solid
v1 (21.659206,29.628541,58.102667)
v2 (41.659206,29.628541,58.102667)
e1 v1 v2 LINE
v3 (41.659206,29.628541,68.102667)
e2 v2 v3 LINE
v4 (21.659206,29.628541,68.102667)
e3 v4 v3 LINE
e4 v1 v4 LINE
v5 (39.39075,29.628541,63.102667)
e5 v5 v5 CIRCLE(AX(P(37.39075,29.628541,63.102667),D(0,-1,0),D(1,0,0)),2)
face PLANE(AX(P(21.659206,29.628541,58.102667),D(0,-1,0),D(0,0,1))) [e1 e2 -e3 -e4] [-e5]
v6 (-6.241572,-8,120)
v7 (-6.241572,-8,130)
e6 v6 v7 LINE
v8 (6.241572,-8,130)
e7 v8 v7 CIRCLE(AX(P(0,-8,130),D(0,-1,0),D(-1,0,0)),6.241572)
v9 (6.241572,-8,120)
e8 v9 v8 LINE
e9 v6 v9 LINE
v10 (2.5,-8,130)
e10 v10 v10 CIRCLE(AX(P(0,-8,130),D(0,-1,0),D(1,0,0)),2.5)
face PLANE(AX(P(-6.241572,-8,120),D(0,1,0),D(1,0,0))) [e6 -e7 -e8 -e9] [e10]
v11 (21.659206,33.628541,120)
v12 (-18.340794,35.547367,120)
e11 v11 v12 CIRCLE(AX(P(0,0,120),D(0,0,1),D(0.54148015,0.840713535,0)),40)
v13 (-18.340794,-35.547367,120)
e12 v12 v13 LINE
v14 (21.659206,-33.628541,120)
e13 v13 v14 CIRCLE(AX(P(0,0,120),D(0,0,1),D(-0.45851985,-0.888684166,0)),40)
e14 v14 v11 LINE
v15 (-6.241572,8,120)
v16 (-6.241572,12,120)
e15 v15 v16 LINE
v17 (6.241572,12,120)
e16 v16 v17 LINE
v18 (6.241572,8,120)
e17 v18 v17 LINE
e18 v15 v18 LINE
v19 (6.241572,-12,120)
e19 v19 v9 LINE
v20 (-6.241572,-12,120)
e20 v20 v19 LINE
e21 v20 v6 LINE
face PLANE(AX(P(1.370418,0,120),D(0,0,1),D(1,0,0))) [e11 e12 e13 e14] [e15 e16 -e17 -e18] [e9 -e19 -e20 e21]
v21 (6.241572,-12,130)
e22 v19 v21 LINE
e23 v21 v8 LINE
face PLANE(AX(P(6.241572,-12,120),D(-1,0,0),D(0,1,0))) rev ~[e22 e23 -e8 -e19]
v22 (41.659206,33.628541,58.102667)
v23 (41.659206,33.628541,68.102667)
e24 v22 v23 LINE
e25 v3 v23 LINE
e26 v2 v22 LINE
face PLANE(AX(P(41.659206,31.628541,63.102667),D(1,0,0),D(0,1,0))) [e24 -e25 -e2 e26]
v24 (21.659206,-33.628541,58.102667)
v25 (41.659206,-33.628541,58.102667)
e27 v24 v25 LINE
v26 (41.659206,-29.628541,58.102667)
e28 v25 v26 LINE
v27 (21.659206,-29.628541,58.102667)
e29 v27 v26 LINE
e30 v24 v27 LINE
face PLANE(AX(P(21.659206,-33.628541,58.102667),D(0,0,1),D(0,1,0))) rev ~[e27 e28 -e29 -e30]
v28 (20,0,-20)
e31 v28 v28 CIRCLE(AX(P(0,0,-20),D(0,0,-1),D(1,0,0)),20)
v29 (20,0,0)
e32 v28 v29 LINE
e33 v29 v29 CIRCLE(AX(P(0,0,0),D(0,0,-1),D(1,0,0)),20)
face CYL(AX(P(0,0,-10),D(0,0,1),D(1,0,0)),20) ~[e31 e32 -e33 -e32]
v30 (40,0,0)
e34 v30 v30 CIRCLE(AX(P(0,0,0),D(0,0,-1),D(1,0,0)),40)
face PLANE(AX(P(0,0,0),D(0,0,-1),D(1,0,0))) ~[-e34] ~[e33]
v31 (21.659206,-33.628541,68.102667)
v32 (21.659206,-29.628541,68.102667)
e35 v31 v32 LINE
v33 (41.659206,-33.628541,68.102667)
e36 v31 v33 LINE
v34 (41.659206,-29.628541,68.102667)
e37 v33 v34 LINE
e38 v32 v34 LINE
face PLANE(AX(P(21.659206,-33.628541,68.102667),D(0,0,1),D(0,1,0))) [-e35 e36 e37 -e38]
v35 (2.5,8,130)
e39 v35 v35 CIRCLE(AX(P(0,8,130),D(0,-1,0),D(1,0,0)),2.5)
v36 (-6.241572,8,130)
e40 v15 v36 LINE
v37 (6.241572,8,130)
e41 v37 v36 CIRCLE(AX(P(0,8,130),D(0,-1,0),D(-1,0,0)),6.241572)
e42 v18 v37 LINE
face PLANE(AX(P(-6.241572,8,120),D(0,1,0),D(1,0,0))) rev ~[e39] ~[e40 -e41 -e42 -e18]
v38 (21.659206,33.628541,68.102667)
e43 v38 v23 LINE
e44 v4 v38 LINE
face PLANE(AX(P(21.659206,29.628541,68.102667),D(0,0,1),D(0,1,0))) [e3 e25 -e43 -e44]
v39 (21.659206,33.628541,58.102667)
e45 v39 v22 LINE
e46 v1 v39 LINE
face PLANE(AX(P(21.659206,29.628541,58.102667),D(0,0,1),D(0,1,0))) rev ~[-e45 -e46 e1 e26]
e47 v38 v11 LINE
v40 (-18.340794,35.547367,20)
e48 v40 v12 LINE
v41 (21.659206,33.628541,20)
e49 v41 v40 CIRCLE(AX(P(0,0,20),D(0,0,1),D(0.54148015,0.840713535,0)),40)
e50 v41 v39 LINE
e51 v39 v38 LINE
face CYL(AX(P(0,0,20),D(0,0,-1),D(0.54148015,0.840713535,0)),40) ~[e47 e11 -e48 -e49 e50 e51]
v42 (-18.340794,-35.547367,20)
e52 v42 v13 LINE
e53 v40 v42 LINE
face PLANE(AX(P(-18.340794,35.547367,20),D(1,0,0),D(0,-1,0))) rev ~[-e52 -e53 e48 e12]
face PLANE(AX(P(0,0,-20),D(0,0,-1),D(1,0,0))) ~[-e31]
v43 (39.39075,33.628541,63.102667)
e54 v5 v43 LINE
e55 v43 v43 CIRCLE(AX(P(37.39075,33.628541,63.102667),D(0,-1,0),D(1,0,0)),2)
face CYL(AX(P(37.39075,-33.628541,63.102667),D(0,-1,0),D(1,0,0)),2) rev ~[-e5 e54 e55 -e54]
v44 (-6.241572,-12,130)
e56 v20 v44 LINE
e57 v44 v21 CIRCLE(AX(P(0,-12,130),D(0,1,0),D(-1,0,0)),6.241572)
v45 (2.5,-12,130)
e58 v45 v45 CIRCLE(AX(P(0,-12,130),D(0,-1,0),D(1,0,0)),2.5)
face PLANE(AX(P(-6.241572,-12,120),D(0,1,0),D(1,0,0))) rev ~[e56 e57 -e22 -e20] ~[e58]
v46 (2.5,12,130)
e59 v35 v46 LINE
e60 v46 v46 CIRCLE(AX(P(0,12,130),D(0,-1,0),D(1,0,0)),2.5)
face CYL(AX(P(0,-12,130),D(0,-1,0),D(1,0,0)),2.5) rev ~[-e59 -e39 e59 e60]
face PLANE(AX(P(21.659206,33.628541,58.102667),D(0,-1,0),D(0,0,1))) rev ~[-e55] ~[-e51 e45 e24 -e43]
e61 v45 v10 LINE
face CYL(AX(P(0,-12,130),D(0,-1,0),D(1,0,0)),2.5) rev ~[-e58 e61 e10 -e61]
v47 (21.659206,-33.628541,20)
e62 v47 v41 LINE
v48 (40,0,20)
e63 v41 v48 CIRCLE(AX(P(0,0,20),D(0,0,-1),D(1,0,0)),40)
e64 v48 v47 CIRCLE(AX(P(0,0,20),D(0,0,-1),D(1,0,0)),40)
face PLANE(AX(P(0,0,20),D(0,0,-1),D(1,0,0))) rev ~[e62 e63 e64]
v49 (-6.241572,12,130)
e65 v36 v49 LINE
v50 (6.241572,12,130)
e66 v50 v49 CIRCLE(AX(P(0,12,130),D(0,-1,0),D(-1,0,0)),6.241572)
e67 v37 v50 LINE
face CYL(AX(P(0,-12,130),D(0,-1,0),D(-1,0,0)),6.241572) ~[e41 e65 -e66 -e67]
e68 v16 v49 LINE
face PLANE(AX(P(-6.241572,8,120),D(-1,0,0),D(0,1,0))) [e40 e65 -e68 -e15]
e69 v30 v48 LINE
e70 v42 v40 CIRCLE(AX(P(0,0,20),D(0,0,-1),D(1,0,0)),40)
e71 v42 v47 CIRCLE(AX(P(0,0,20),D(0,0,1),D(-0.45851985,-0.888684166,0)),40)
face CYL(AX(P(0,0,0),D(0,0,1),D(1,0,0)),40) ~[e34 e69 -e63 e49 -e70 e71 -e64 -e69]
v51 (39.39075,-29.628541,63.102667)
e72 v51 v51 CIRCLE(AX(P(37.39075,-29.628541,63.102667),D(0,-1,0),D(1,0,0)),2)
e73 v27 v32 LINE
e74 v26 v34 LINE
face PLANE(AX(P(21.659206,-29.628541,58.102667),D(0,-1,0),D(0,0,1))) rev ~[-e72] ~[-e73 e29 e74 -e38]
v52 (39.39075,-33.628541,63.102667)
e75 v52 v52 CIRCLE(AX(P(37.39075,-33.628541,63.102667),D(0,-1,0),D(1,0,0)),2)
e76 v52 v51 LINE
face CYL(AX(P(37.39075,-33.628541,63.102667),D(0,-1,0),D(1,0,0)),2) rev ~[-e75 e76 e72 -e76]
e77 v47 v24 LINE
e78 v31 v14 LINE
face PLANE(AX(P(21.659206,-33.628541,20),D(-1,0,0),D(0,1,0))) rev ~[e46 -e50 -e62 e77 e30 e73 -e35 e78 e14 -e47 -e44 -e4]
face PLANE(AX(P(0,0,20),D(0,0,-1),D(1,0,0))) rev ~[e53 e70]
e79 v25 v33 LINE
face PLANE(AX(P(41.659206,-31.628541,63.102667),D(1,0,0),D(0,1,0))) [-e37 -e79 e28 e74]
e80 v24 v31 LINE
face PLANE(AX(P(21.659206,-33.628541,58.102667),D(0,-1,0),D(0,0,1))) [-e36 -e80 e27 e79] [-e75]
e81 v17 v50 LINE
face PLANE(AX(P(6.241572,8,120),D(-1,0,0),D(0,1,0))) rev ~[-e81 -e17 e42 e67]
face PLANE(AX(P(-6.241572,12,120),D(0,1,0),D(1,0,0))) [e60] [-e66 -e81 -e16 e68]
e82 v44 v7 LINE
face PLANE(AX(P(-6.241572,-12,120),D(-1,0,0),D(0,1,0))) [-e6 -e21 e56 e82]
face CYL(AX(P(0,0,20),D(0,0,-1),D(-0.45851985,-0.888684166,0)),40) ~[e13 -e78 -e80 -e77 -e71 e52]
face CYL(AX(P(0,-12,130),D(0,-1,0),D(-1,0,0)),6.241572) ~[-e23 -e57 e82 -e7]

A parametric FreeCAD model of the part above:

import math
import FreeCAD as App
import Part
import Sketcher
from FreeCAD import Vector
Q = App.Units.Quantity


def add_polygon(sketch, points):
    """Adds a closed chain of lines whose ends are joined by coincident constraints."""
    first, n = sketch.GeometryCount, len(points)
    for a, b in zip(points, points[1:] + points[:1]):
        sketch.addGeometry(Part.LineSegment(App.Vector(*a, 0), App.Vector(*b, 0)), False)
    for i in range(n):
        sketch.addConstraint(Sketcher.Constraint("Coincident", first + i, 2, first + (i + 1) % n, 1))

doc = App.newDocument("Part")
body = doc.addObject("PartDesign::Body", "Body")

# Sketch on XZ plane
sketch1 = body.newObject("Sketcher::SketchObject", "Sketch")
sketch1.AttachmentSupport = (doc.getObject("XZ_Plane"), [""])
sketch1.MapMode = "FlatFace"
add_polygon(sketch1, [(0, -20), (20, -20), (20, 0), (40, 0), (40, 20), (0, 20)])  # lines 0-5
sketch1.addConstraint(Sketcher.Constraint("Horizontal", 0))
sketch1.addConstraint(Sketcher.Constraint("Vertical", 1))
sketch1.addConstraint(Sketcher.Constraint("Horizontal", 2))
sketch1.addConstraint(Sketcher.Constraint("Vertical", 3))
sketch1.addConstraint(Sketcher.Constraint("Horizontal", 4))
sketch1.addConstraint(Sketcher.Constraint("Vertical", 5))
sketch1.addConstraint(Sketcher.Constraint("Symmetric", 4, 2, 5, 2, -1, 1))
sketch1.addConstraint(Sketcher.Constraint("PointOnObject", 1, 2, -1))
sketch1.addConstraint(Sketcher.Constraint("Equal", 0, 2))
sketch1.addConstraint(Sketcher.Constraint("Equal", 2, 1))
sketch1.addConstraint(Sketcher.Constraint("DistanceX", 0, 1, 0, 2, Q("20 mm")))
revolution = body.newObject("PartDesign::Revolution", "Revolution")
revolution.Profile = sketch1
revolution.ReferenceAxis = (sketch1, ["V_Axis"])
revolution.Angle = 360

# Sketch on XY plane
sketch2 = body.newObject("Sketcher::SketchObject", "Sketch001")
sketch2.AttachmentSupport = (doc.getObject("XY_Plane"), [""])
sketch2.MapMode = "FlatFace"
sketch2.AttachmentOffset = App.Placement(Vector(0, 0, 20), App.Rotation())
sketch2.addGeometry(Part.ArcOfCircle(Part.Circle(Vector(0, 0, 0), Vector(0, 0, 1), 40), math.radians(57), math.radians(117)), False)
sketch2.addGeometry(Part.LineSegment(Vector(-18, 36, 0), Vector(-18, -36, 0)), False)
sketch2.addGeometry(Part.ArcOfCircle(Part.Circle(Vector(0, 0, 0), Vector(0, 0, 1), 40), math.radians(-117), math.radians(-57)), False)
sketch2.addGeometry(Part.LineSegment(Vector(22, -34, 0), Vector(22, 34, 0)), False)
sketch2.addConstraint(Sketcher.Constraint("Coincident", 0, 2, 1, 1))
sketch2.addConstraint(Sketcher.Constraint("Coincident", 1, 2, 2, 1))
sketch2.addConstraint(Sketcher.Constraint("Coincident", 2, 2, 3, 1))
sketch2.addConstraint(Sketcher.Constraint("Coincident", 3, 2, 0, 1))
sketch2.addConstraint(Sketcher.Constraint("Vertical", 1))
sketch2.addConstraint(Sketcher.Constraint("Vertical", 3))
sketch2.addConstraint(Sketcher.Constraint("Coincident", 0, 3, -1, 1))
sketch2.addConstraint(Sketcher.Constraint("Coincident", 2, 3, -1, 1))
sketch2.addConstraint(Sketcher.Constraint("Equal", 0, 2))
sketch2.addConstraint(Sketcher.Constraint("Radius", 0, Q("40 mm")))
sketch2.addConstraint(Sketcher.Constraint("DistanceX", 1, 2, 2, 2, Q("40 mm")))
sketch2.addConstraint(Sketcher.Constraint("DistanceY", 1, 2, 1, 1, Q("71.094733 mm")))
pad1 = body.newObject("PartDesign::Pad", "Pad")
pad1.Profile = sketch2
pad1.Length = 100

# Sketch on XY plane
sketch3 = body.newObject("Sketcher::SketchObject", "Sketch002")
sketch3.AttachmentSupport = (doc.getObject("XY_Plane"), [""])
sketch3.MapMode = "FlatFace"
sketch3.AttachmentOffset = App.Placement(Vector(0, 0, 120), App.Rotation())
add_polygon(sketch3, [(-6.2, -8), (-6.2, -12), (6.2, -12), (6.2, -8)])  # lines 0-3
add_polygon(sketch3, [(-6.2, 12), (-6.2, 8), (6.2, 8), (6.2, 12)])  # lines 4-7
sketch3.addConstraint(Sketcher.Constraint("Vertical", 0))
sketch3.addConstraint(Sketcher.Constraint("Horizontal", 1))
sketch3.addConstraint(Sketcher.Constraint("Vertical", 2))
sketch3.addConstraint(Sketcher.Constraint("Horizontal", 3))
sketch3.addConstraint(Sketcher.Constraint("Vertical", 4))
sketch3.addConstraint(Sketcher.Constraint("Horizontal", 5))
sketch3.addConstraint(Sketcher.Constraint("Vertical", 6))
sketch3.addConstraint(Sketcher.Constraint("Horizontal", 7))
sketch3.addConstraint(Sketcher.Constraint("Symmetric", 2, 2, 4, 2, -1, 1))
sketch3.addConstraint(Sketcher.Constraint("Symmetric", 0, 2, 6, 2, -1, 1))
sketch3.addConstraint(Sketcher.Constraint("Vertical", 3, 2, 4, 2))
sketch3.addConstraint(Sketcher.Constraint("DistanceY", 0, 2, 0, 1, Q("4 mm")))
sketch3.addConstraint(Sketcher.Constraint("DistanceY", 0, 2, -1, 1, Q("12 mm")))
sketch3.addConstraint(Sketcher.Constraint("DistanceX", 1, 1, 1, 2, Q("12.483143 mm")))
pad2 = body.newObject("PartDesign::Pad", "Pad001")
pad2.Profile = sketch3
pad2.Length = 20

# Sketch on XZ plane
sketch4 = body.newObject("Sketcher::SketchObject", "Sketch003")
sketch4.AttachmentSupport = (doc.getObject("XZ_Plane"), [""])
sketch4.MapMode = "FlatFace"
sketch4.AttachmentOffset = App.Placement(Vector(0, 0, 12), App.Rotation())
sketch4.addGeometry(Part.ArcOfCircle(Part.Circle(Vector(0, 130, 0), Vector(0, 0, 1), 6), math.radians(0), math.radians(180)), False)
sketch4.addGeometry(Part.LineSegment(Vector(6, 130, 0), Vector(6, 140, 0)), False)
sketch4.addGeometry(Part.LineSegment(Vector(6, 140, 0), Vector(-6, 140, 0)), False)
sketch4.addGeometry(Part.LineSegment(Vector(-6, 140, 0), Vector(-6, 130, 0)), False)
sketch4.addConstraint(Sketcher.Constraint("Tangent", 0, 1, 1, 1))
sketch4.addConstraint(Sketcher.Constraint("Coincident", 1, 2, 2, 1))
sketch4.addConstraint(Sketcher.Constraint("Coincident", 2, 2, 3, 1))
sketch4.addConstraint(Sketcher.Constraint("Tangent", 3, 2, 0, 2))
sketch4.addConstraint(Sketcher.Constraint("Vertical", 1))
sketch4.addConstraint(Sketcher.Constraint("Horizontal", 2))
sketch4.addConstraint(Sketcher.Constraint("Vertical", 3))
sketch4.addConstraint(Sketcher.Constraint("PointOnObject", 0, 3, -2))
sketch4.addConstraint(Sketcher.Constraint("DistanceY", 1, 1, 1, 2, Q("10 mm")))
sketch4.addConstraint(Sketcher.Constraint("DistanceY", -1, 1, 0, 3, Q("130 mm")))
sketch4.addConstraint(Sketcher.Constraint("Radius", 0, Q("6.241572 mm")))
pocket1 = body.newObject("PartDesign::Pocket", "Pocket")
pocket1.Profile = sketch4
pocket1.Length = 50

# Sketch on XZ plane
sketch5 = body.newObject("Sketcher::SketchObject", "Sketch004")
sketch5.AttachmentSupport = (doc.getObject("XZ_Plane"), [""])
sketch5.MapMode = "FlatFace"
sketch5.AttachmentOffset = App.Placement(Vector(0, 0, 12), App.Rotation())
sketch5.addGeometry(Part.Circle(Vector(0, 130, 0), Vector(0, 0, 1), 2.5), False)
sketch5.addConstraint(Sketcher.Constraint("PointOnObject", 0, 3, -2))
sketch5.addConstraint(Sketcher.Constraint("Diameter", 0, Q("5 mm")))
sketch5.addConstraint(Sketcher.Constraint("DistanceY", -1, 1, 0, 3, Q("130 mm")))
pocket2 = body.newObject("PartDesign::Pocket", "Pocket001")
pocket2.Profile = sketch5
pocket2.Length = 50

# Sketch on YZ plane
sketch6 = body.newObject("Sketcher::SketchObject", "Sketch005")
sketch6.AttachmentSupport = (doc.getObject("YZ_Plane"), [""])
sketch6.MapMode = "FlatFace"
sketch6.AttachmentOffset = App.Placement(Vector(0, 0, 21.659206), App.Rotation())
add_polygon(sketch6, [(-33.6, 68.1), (-33.6, 58.1), (-29.6, 58.1), (-29.6, 68.1)])  # lines 0-3
sketch6.addConstraint(Sketcher.Constraint("Vertical", 0))
sketch6.addConstraint(Sketcher.Constraint("Horizontal", 1))
sketch6.addConstraint(Sketcher.Constraint("Vertical", 2))
sketch6.addConstraint(Sketcher.Constraint("Horizontal", 3))
sketch6.addConstraint(Sketcher.Constraint("DistanceX", 1, 1, 1, 2, Q("4 mm")))
sketch6.addConstraint(Sketcher.Constraint("DistanceY", 0, 2, 0, 1, Q("10 mm")))
sketch6.addConstraint(Sketcher.Constraint("DistanceX", 0, 2, -1, 1, Q("33.628541 mm")))
sketch6.addConstraint(Sketcher.Constraint("DistanceY", -1, 1, 0, 2, Q("58.102667 mm")))
pad3 = body.newObject("PartDesign::Pad", "Pad002")
pad3.Profile = sketch6
pad3.Length = 20

# Sketch on YZ plane
sketch7 = body.newObject("Sketcher::SketchObject", "Sketch006")
sketch7.AttachmentSupport = (doc.getObject("YZ_Plane"), [""])
sketch7.MapMode = "FlatFace"
sketch7.AttachmentOffset = App.Placement(Vector(0, 0, 21.659206), App.Rotation())
add_polygon(sketch7, [(29.6, 68.1), (29.6, 58.1), (33.6, 58.1), (33.6, 68.1)])  # lines 0-3
sketch7.addConstraint(Sketcher.Constraint("Vertical", 0))
sketch7.addConstraint(Sketcher.Constraint("Horizontal", 1))
sketch7.addConstraint(Sketcher.Constraint("Vertical", 2))
sketch7.addConstraint(Sketcher.Constraint("Horizontal", 3))
sketch7.addConstraint(Sketcher.Constraint("DistanceX", 1, 1, 1, 2, Q("4 mm")))
sketch7.addConstraint(Sketcher.Constraint("DistanceY", 0, 2, 0, 1, Q("10 mm")))
sketch7.addConstraint(Sketcher.Constraint("DistanceX", -1, 1, 0, 2, Q("29.628541 mm")))
sketch7.addConstraint(Sketcher.Constraint("DistanceY", -1, 1, 0, 2, Q("58.102667 mm")))
pad4 = body.newObject("PartDesign::Pad", "Pad003")
pad4.Profile = sketch7
pad4.Length = 20

# Sketch on XZ plane
sketch8 = body.newObject("Sketcher::SketchObject", "Sketch007")
sketch8.AttachmentSupport = (doc.getObject("XZ_Plane"), [""])
sketch8.MapMode = "FlatFace"
sketch8.AttachmentOffset = App.Placement(Vector(0, 0, 33.628541), App.Rotation())
sketch8.addGeometry(Part.Circle(Vector(37.4, 63.1, 0), Vector(0, 0, 1), 2), False)
sketch8.addConstraint(Sketcher.Constraint("Diameter", 0, Q("4 mm")))
sketch8.addConstraint(Sketcher.Constraint("DistanceX", -1, 1, 0, 3, Q("37.39075 mm")))
sketch8.addConstraint(Sketcher.Constraint("DistanceY", -1, 1, 0, 3, Q("63.102667 mm")))
pocket3 = body.newObject("PartDesign::Pocket", "Pocket002")
pocket3.Profile = sketch8
pocket3.Length = 100

doc.recompute()
